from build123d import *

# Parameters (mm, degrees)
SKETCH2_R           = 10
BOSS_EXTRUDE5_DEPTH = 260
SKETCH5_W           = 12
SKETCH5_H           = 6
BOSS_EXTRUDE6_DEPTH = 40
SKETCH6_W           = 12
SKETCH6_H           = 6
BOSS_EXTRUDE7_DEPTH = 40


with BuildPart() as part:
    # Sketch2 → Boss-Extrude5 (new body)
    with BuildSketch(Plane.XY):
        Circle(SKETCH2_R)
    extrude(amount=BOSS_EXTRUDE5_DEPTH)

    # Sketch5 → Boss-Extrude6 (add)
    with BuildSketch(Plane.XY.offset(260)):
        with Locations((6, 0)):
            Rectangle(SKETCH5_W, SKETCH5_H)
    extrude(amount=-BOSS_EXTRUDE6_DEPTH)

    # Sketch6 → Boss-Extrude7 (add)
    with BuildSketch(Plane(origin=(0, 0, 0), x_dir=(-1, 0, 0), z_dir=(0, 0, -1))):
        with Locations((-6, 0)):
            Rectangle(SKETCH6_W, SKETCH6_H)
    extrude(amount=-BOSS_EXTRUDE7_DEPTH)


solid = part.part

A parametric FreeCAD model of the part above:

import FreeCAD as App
import Part
import Sketcher
from FreeCAD import Vector
Q = App.Units.Quantity

doc = App.newDocument("Part")
body = doc.addObject("PartDesign::Body", "Body")

# Sketch on XY plane
sketch1 = body.newObject("Sketcher::SketchObject", "Sketch")
sketch1.AttachmentSupport = (doc.getObject("XY_Plane"), [""])
sketch1.MapMode = "FlatFace"
sketch1.addGeometry(Part.Circle(Vector(0, 0, 0), Vector(0, 0, 1), 10), False)
sketch1.addConstraint([
    Sketcher.Constraint("Coincident", 0, 3, -1, 1),
    Sketcher.Constraint("Diameter", 0, Q("20 mm")),
])
pad1 = body.newObject("PartDesign::Pad", "Pad")
pad1.Profile = sketch1
pad1.Length = 260

# Sketch on XY plane
sketch2 = body.newObject("Sketcher::SketchObject", "Sketch001")
sketch2.AttachmentSupport = (doc.getObject("XY_Plane"), [""])
sketch2.MapMode = "FlatFace"
sketch2.AttachmentOffset = App.Placement(Vector(0, 0, 260), App.Rotation())
sketch2.addGeometry([
    Part.LineSegment(Vector(0, 3, 0), Vector(0, -3, 0)),
    Part.LineSegment(Vector(0, -3, 0), Vector(12, -3, 0)),
    Part.LineSegment(Vector(12, -3, 0), Vector(12, 3, 0)),
    Part.LineSegment(Vector(12, 3, 0), Vector(0, 3, 0)),
], False)
sketch2.addConstraint([
    Sketcher.Constraint("Coincident", 0, 2, 1, 1),
    Sketcher.Constraint("Coincident", 1, 2, 2, 1),
    Sketcher.Constraint("Coincident", 2, 2, 3, 1),
    Sketcher.Constraint("Coincident", 3, 2, 0, 1),
    Sketcher.Constraint("Vertical", 0),
    Sketcher.Constraint("Horizontal", 1),
    Sketcher.Constraint("Vertical", 2),
    Sketcher.Constraint("Horizontal", 3),
    Sketcher.Constraint("Symmetric", 0, 2, 3, 2, -1, 1),
    Sketcher.Constraint("DistanceX", 1, 1, 1, 2, Q("12 mm")),
    Sketcher.Constraint("DistanceY", 0, 2, 0, 1, Q("6 mm")),
])
pad2 = body.newObject("PartDesign::Pad", "Pad001")
pad2.Profile = sketch2
pad2.Length = 40
pad2.Reversed = True

# Sketch on XY plane
sketch3 = body.newObject("Sketcher::SketchObject", "Sketch002")
sketch3.AttachmentSupport = (doc.getObject("XY_Plane"), [""])
sketch3.MapMode = "FlatFace"
sketch3.addGeometry([
    Part.LineSegment(Vector(12, 3, 0), Vector(12, -3, 0)),
    Part.LineSegment(Vector(12, -3, 0), Vector(0, -3, 0)),
    Part.LineSegment(Vector(0, -3, 0), Vector(0, 3, 0)),
    Part.LineSegment(Vector(0, 3, 0), Vector(12, 3, 0)),
], False)
sketch3.addConstraint([
    Sketcher.Constraint("Coincident", 0, 2, 1, 1),
    Sketcher.Constraint("Coincident", 1, 2, 2, 1),
    Sketcher.Constraint("Coincident", 2, 2, 3, 1),
    Sketcher.Constraint("Coincident", 3, 2, 0, 1),
    Sketcher.Constraint("Vertical", 0),
    Sketcher.Constraint("Horizontal", 1),
    Sketcher.Constraint("Vertical", 2),
    Sketcher.Constraint("Horizontal", 3),
    Sketcher.Constraint("Symmetric", 1, 2, 2, 2, -1, 1),
    Sketcher.Constraint("DistanceX", 1, 2, 1, 1, Q("12 mm")),
    Sketcher.Constraint("DistanceY", 0, 2, 0, 1, Q("6 mm")),
])
pad3 = body.newObject("PartDesign::Pad", "Pad002")
pad3.Profile = sketch3
pad3.Length = 40

doc.recompute()
